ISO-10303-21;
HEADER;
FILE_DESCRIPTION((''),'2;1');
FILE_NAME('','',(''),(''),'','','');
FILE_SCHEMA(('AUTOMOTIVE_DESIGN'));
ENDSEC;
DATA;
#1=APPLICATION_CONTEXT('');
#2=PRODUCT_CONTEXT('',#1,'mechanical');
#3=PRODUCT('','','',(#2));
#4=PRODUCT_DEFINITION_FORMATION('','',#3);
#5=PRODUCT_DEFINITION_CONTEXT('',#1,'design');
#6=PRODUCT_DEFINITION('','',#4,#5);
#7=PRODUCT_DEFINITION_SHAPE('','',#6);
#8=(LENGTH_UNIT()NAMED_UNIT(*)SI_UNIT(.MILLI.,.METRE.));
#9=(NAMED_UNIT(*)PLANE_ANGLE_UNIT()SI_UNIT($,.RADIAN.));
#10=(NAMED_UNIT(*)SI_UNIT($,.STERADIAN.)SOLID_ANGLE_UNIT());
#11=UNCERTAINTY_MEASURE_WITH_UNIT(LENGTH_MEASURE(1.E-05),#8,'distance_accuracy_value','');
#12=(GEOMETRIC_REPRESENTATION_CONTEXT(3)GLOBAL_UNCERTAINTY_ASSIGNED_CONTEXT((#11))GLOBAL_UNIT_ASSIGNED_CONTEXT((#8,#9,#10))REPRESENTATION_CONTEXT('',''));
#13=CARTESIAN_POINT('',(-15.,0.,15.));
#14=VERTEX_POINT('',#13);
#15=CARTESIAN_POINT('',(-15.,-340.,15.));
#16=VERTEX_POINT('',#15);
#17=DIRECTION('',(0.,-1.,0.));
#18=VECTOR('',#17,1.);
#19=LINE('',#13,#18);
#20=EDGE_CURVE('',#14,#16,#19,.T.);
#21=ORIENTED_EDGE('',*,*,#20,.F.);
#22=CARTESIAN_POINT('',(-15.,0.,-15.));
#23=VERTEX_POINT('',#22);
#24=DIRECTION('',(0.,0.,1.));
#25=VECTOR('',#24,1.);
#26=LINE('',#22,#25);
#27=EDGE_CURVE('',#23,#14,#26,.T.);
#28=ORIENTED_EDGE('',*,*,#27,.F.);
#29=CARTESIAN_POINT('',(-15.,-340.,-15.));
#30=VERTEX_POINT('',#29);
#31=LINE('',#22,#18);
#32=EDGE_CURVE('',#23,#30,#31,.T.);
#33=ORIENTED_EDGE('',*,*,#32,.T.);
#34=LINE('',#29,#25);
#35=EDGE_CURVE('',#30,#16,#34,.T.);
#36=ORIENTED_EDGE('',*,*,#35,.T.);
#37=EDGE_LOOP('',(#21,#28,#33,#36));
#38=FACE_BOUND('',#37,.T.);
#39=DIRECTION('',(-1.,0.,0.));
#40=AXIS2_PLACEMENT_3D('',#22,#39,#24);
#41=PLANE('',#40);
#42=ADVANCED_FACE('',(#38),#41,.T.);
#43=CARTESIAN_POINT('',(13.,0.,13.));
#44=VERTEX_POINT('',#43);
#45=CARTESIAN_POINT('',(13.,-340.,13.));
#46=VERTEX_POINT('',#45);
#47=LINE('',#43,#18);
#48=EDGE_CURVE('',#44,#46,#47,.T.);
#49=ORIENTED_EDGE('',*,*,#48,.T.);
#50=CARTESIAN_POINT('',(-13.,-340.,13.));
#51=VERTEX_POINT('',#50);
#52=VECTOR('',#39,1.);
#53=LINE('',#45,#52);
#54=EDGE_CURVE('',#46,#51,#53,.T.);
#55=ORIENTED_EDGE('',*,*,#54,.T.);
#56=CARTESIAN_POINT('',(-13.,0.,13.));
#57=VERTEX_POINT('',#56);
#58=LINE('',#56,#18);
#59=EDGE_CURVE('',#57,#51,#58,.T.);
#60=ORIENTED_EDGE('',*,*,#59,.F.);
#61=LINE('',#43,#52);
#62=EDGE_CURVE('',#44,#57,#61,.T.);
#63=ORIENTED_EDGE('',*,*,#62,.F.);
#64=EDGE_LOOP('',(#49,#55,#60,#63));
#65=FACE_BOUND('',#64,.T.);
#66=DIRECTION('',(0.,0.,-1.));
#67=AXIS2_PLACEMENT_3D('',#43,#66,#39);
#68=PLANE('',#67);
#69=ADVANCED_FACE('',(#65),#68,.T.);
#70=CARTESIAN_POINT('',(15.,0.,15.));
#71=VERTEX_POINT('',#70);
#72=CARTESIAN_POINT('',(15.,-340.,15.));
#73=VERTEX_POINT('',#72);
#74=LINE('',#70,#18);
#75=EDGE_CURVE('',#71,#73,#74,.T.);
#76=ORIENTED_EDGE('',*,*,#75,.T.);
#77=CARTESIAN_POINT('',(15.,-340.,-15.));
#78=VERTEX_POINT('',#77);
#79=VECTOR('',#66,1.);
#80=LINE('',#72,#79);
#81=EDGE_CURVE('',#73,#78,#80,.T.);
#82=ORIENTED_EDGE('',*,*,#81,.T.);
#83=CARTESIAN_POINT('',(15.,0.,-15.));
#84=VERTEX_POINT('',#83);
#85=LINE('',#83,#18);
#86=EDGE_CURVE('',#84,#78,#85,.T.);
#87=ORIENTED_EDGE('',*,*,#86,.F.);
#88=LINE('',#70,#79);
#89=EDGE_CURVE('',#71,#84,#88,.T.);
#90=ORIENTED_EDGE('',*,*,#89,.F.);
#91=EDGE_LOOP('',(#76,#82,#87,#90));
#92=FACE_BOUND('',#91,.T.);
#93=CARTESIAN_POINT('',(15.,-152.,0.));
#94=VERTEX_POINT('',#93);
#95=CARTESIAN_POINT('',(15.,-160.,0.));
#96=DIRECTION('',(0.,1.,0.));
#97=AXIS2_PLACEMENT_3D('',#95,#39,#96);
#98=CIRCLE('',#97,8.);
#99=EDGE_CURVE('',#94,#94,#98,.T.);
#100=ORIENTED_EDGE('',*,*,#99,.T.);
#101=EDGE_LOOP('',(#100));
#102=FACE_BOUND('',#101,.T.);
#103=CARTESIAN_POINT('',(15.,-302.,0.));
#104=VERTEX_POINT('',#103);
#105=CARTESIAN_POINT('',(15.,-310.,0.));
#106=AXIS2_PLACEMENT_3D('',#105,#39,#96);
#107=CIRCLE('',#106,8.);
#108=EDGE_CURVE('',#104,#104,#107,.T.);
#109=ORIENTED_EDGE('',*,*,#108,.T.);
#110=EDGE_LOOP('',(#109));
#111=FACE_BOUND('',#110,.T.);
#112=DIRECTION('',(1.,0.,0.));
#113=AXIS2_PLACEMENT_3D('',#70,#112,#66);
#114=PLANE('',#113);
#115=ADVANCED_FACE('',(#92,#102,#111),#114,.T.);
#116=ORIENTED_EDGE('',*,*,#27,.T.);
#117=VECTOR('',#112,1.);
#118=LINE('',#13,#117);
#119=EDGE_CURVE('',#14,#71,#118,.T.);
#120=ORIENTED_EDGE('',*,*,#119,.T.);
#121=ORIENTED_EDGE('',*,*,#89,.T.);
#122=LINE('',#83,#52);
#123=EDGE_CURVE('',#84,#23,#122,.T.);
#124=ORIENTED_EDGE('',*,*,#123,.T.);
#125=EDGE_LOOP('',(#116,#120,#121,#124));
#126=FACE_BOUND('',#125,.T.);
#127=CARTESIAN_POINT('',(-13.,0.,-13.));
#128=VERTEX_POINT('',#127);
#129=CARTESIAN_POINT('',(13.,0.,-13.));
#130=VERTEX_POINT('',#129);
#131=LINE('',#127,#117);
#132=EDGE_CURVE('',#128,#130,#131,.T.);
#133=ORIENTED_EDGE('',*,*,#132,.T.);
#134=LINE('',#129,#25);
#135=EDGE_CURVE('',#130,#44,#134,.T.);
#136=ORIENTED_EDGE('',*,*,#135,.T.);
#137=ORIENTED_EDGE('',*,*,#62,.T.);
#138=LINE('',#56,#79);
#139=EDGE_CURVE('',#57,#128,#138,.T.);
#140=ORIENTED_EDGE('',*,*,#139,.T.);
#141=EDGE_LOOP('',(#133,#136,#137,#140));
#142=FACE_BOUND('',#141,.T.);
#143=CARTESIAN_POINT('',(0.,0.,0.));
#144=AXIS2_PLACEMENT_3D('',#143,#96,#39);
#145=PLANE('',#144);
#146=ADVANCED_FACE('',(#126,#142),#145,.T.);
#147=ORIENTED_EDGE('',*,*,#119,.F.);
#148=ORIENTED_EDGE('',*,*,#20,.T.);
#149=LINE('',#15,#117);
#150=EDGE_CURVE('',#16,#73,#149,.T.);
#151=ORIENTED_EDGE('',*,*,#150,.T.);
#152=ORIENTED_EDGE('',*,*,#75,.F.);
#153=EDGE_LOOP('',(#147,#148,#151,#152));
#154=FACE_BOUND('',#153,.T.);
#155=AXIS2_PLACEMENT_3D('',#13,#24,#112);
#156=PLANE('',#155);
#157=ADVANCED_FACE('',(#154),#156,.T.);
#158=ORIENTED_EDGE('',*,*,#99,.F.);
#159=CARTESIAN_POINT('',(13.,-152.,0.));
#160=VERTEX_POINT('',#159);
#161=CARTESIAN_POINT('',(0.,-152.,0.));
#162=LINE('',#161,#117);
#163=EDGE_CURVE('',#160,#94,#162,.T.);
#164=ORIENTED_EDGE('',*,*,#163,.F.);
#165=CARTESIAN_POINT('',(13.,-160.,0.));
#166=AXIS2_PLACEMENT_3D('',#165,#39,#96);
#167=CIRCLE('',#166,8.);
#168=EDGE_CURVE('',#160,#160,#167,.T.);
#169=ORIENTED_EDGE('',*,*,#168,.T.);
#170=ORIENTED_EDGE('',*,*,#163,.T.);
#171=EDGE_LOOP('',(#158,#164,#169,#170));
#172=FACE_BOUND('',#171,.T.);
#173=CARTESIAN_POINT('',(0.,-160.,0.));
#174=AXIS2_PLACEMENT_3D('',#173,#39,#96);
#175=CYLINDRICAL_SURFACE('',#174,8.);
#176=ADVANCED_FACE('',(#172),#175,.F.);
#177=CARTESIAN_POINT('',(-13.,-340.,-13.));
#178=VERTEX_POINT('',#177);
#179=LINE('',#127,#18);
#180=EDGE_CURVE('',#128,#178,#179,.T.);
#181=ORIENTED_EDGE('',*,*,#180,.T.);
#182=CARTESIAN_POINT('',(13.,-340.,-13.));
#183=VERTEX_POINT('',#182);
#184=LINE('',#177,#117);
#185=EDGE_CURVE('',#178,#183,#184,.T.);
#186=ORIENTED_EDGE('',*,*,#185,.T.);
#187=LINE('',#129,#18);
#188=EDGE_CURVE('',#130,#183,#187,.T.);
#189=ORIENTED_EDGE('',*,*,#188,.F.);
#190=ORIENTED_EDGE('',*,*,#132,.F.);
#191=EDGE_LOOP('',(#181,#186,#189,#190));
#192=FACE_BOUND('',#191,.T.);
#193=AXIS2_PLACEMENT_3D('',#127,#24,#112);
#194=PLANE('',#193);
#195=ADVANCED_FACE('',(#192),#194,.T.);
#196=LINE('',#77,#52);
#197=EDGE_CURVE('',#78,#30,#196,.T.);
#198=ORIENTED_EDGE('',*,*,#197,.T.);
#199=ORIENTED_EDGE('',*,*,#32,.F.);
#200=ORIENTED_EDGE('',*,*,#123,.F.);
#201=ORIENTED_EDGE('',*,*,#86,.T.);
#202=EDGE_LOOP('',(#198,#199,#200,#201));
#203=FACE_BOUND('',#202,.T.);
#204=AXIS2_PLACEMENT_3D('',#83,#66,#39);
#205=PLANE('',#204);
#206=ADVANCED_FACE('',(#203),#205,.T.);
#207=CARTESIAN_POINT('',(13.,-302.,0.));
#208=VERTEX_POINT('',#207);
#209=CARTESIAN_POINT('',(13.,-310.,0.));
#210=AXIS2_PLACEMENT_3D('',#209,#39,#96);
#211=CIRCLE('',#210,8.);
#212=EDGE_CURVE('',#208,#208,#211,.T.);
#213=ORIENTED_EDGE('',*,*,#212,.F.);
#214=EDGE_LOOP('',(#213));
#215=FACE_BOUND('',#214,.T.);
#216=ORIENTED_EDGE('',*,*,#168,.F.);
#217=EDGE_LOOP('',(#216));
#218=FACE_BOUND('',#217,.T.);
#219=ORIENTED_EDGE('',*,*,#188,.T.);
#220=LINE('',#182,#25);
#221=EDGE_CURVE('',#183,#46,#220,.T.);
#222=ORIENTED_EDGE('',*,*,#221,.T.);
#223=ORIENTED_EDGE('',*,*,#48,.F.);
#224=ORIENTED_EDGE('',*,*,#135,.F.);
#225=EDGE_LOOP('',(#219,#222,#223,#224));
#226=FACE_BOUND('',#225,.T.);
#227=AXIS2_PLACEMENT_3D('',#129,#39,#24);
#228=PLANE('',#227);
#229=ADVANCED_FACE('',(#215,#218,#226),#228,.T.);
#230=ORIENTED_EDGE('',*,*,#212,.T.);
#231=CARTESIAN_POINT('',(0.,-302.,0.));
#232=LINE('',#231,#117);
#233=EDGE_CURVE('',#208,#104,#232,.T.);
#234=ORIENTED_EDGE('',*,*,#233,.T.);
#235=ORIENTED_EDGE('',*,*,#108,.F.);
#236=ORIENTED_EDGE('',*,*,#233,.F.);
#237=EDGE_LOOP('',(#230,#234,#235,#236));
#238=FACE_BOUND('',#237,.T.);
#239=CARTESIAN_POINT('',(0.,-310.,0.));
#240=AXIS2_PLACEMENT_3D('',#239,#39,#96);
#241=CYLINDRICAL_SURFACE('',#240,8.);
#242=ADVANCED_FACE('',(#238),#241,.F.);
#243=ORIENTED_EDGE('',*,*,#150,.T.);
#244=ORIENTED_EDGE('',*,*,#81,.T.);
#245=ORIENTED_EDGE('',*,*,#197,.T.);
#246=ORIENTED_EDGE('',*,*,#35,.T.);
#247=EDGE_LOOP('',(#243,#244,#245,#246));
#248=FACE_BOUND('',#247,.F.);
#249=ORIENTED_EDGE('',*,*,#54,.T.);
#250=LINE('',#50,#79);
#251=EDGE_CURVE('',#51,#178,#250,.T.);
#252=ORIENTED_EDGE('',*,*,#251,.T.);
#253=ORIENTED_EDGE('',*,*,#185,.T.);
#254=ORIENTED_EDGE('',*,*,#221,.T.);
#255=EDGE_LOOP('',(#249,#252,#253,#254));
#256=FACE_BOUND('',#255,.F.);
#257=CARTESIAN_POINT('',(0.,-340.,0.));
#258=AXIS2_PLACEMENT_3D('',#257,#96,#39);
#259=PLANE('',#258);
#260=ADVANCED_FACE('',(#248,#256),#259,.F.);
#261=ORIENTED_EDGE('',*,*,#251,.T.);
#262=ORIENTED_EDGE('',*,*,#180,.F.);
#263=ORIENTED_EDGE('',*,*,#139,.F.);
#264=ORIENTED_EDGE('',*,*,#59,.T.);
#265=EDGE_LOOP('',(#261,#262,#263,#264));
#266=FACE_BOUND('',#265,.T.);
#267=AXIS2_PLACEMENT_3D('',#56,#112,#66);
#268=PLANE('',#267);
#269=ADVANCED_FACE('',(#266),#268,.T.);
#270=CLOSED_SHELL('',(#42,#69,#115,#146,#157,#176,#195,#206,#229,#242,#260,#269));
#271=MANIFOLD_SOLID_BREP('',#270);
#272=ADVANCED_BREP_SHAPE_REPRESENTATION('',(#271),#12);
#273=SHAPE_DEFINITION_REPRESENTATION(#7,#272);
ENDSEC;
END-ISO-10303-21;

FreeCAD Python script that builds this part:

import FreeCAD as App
import Part
import Sketcher

doc = App.newDocument("Part")
body = doc.addObject("PartDesign::Body", "Body")

# Sketch on XZ plane
sketch1 = doc.addObject("Sketcher::SketchObject", "Sketch")
body.addObject(sketch1)
sketch1.AttachmentSupport = (doc.XZ_Plane, [""])
sketch1.MapMode = "FlatFace"
sketch1.addGeometry(Part.LineSegment(App.Vector(-15, -15, 0), App.Vector(-15, 15, 0)), False)
sketch1.addGeometry(Part.LineSegment(App.Vector(-15, 15, 0), App.Vector(15, 15, 0)), False)
sketch1.addGeometry(Part.LineSegment(App.Vector(15, 15, 0), App.Vector(15, -15, 0)), False)
sketch1.addGeometry(Part.LineSegment(App.Vector(15, -15, 0), App.Vector(-15, -15, 0)), False)
sketch1.addGeometry(Part.LineSegment(App.Vector(13, -13, 0), App.Vector(13, 13, 0)), False)
sketch1.addGeometry(Part.LineSegment(App.Vector(13, 13, 0), App.Vector(-13, 13, 0)), False)
sketch1.addGeometry(Part.LineSegment(App.Vector(-13, 13, 0), App.Vector(-13, -13, 0)), False)
sketch1.addGeometry(Part.LineSegment(App.Vector(-13, -13, 0), App.Vector(13, -13, 0)), False)
sketch1.addConstraint(Sketcher.Constraint("Coincident", 0, 2, 1, 1))
sketch1.addConstraint(Sketcher.Constraint("Coincident", 1, 2, 2, 1))
sketch1.addConstraint(Sketcher.Constraint("Coincident", 2, 2, 3, 1))
sketch1.addConstraint(Sketcher.Constraint("Coincident", 3, 2, 0, 1))
sketch1.addConstraint(Sketcher.Constraint("Coincident", 4, 2, 5, 1))
sketch1.addConstraint(Sketcher.Constraint("Coincident", 5, 2, 6, 1))
sketch1.addConstraint(Sketcher.Constraint("Coincident", 6, 2, 7, 1))
sketch1.addConstraint(Sketcher.Constraint("Coincident", 7, 2, 4, 1))
sketch1.addConstraint(Sketcher.Constraint("Vertical", 0))
sketch1.addConstraint(Sketcher.Constraint("Horizontal", 1))
sketch1.addConstraint(Sketcher.Constraint("Vertical", 2))
sketch1.addConstraint(Sketcher.Constraint("Horizontal", 3))
sketch1.addConstraint(Sketcher.Constraint("Vertical", 4))
sketch1.addConstraint(Sketcher.Constraint("Horizontal", 5))
sketch1.addConstraint(Sketcher.Constraint("Vertical", 6))
sketch1.addConstraint(Sketcher.Constraint("Horizontal", 7))
sketch1.addConstraint(Sketcher.Constraint("Symmetric", 0, 2, 2, 2, -1, 1))
sketch1.addConstraint(Sketcher.Constraint("Symmetric", 4, 2, 6, 2, -1, 1))
sketch1.addConstraint(Sketcher.Constraint("Equal", 3, 0))
sketch1.addConstraint(Sketcher.Constraint("Equal", 7, 4))
sketch1.addConstraint(Sketcher.Constraint("DistanceX", 1, 1, 1, 2, 30.0))
sketch1.addConstraint(Sketcher.Constraint("DistanceX", 4, 2, 1, 2, 2.0))
pad1 = doc.addObject("PartDesign::Pad", "Pad")
body.addObject(pad1)
pad1.Profile = sketch1
pad1.Length = 340

# Sketch on YZ plane
sketch2 = doc.addObject("Sketcher::SketchObject", "Sketch001")
body.addObject(sketch2)
sketch2.AttachmentSupport = (doc.YZ_Plane, [""])
sketch2.MapMode = "FlatFace"
sketch2.addGeometry(Part.Circle(App.Vector(-160, 0, 0), App.Vector(0, 0, 1), 8), False)
sketch2.addGeometry(Part.Circle(App.Vector(-310, 0, 0), App.Vector(0, 0, 1), 8), False)
sketch2.addConstraint(Sketcher.Constraint("Equal", 0, 1))
sketch2.addConstraint(Sketcher.Constraint("PointOnObject", 0, 3, -1))
sketch2.addConstraint(Sketcher.Constraint("PointOnObject", 1, 3, -1))
sketch2.addConstraint(Sketcher.Constraint("Diameter", 0, 16.0))
sketch2.addConstraint(Sketcher.Constraint("DistanceX", 0, 3, -1, 1, 160.0))
sketch2.addConstraint(Sketcher.Constraint("DistanceX", 1, 3, -1, 1, 310.0))
pocket1 = doc.addObject("PartDesign::Pocket", "Pocket")
body.addObject(pocket1)
pocket1.Profile = sketch2
pocket1.Type = "ThroughAll"
pocket1.Reversed = True

doc.recompute()
